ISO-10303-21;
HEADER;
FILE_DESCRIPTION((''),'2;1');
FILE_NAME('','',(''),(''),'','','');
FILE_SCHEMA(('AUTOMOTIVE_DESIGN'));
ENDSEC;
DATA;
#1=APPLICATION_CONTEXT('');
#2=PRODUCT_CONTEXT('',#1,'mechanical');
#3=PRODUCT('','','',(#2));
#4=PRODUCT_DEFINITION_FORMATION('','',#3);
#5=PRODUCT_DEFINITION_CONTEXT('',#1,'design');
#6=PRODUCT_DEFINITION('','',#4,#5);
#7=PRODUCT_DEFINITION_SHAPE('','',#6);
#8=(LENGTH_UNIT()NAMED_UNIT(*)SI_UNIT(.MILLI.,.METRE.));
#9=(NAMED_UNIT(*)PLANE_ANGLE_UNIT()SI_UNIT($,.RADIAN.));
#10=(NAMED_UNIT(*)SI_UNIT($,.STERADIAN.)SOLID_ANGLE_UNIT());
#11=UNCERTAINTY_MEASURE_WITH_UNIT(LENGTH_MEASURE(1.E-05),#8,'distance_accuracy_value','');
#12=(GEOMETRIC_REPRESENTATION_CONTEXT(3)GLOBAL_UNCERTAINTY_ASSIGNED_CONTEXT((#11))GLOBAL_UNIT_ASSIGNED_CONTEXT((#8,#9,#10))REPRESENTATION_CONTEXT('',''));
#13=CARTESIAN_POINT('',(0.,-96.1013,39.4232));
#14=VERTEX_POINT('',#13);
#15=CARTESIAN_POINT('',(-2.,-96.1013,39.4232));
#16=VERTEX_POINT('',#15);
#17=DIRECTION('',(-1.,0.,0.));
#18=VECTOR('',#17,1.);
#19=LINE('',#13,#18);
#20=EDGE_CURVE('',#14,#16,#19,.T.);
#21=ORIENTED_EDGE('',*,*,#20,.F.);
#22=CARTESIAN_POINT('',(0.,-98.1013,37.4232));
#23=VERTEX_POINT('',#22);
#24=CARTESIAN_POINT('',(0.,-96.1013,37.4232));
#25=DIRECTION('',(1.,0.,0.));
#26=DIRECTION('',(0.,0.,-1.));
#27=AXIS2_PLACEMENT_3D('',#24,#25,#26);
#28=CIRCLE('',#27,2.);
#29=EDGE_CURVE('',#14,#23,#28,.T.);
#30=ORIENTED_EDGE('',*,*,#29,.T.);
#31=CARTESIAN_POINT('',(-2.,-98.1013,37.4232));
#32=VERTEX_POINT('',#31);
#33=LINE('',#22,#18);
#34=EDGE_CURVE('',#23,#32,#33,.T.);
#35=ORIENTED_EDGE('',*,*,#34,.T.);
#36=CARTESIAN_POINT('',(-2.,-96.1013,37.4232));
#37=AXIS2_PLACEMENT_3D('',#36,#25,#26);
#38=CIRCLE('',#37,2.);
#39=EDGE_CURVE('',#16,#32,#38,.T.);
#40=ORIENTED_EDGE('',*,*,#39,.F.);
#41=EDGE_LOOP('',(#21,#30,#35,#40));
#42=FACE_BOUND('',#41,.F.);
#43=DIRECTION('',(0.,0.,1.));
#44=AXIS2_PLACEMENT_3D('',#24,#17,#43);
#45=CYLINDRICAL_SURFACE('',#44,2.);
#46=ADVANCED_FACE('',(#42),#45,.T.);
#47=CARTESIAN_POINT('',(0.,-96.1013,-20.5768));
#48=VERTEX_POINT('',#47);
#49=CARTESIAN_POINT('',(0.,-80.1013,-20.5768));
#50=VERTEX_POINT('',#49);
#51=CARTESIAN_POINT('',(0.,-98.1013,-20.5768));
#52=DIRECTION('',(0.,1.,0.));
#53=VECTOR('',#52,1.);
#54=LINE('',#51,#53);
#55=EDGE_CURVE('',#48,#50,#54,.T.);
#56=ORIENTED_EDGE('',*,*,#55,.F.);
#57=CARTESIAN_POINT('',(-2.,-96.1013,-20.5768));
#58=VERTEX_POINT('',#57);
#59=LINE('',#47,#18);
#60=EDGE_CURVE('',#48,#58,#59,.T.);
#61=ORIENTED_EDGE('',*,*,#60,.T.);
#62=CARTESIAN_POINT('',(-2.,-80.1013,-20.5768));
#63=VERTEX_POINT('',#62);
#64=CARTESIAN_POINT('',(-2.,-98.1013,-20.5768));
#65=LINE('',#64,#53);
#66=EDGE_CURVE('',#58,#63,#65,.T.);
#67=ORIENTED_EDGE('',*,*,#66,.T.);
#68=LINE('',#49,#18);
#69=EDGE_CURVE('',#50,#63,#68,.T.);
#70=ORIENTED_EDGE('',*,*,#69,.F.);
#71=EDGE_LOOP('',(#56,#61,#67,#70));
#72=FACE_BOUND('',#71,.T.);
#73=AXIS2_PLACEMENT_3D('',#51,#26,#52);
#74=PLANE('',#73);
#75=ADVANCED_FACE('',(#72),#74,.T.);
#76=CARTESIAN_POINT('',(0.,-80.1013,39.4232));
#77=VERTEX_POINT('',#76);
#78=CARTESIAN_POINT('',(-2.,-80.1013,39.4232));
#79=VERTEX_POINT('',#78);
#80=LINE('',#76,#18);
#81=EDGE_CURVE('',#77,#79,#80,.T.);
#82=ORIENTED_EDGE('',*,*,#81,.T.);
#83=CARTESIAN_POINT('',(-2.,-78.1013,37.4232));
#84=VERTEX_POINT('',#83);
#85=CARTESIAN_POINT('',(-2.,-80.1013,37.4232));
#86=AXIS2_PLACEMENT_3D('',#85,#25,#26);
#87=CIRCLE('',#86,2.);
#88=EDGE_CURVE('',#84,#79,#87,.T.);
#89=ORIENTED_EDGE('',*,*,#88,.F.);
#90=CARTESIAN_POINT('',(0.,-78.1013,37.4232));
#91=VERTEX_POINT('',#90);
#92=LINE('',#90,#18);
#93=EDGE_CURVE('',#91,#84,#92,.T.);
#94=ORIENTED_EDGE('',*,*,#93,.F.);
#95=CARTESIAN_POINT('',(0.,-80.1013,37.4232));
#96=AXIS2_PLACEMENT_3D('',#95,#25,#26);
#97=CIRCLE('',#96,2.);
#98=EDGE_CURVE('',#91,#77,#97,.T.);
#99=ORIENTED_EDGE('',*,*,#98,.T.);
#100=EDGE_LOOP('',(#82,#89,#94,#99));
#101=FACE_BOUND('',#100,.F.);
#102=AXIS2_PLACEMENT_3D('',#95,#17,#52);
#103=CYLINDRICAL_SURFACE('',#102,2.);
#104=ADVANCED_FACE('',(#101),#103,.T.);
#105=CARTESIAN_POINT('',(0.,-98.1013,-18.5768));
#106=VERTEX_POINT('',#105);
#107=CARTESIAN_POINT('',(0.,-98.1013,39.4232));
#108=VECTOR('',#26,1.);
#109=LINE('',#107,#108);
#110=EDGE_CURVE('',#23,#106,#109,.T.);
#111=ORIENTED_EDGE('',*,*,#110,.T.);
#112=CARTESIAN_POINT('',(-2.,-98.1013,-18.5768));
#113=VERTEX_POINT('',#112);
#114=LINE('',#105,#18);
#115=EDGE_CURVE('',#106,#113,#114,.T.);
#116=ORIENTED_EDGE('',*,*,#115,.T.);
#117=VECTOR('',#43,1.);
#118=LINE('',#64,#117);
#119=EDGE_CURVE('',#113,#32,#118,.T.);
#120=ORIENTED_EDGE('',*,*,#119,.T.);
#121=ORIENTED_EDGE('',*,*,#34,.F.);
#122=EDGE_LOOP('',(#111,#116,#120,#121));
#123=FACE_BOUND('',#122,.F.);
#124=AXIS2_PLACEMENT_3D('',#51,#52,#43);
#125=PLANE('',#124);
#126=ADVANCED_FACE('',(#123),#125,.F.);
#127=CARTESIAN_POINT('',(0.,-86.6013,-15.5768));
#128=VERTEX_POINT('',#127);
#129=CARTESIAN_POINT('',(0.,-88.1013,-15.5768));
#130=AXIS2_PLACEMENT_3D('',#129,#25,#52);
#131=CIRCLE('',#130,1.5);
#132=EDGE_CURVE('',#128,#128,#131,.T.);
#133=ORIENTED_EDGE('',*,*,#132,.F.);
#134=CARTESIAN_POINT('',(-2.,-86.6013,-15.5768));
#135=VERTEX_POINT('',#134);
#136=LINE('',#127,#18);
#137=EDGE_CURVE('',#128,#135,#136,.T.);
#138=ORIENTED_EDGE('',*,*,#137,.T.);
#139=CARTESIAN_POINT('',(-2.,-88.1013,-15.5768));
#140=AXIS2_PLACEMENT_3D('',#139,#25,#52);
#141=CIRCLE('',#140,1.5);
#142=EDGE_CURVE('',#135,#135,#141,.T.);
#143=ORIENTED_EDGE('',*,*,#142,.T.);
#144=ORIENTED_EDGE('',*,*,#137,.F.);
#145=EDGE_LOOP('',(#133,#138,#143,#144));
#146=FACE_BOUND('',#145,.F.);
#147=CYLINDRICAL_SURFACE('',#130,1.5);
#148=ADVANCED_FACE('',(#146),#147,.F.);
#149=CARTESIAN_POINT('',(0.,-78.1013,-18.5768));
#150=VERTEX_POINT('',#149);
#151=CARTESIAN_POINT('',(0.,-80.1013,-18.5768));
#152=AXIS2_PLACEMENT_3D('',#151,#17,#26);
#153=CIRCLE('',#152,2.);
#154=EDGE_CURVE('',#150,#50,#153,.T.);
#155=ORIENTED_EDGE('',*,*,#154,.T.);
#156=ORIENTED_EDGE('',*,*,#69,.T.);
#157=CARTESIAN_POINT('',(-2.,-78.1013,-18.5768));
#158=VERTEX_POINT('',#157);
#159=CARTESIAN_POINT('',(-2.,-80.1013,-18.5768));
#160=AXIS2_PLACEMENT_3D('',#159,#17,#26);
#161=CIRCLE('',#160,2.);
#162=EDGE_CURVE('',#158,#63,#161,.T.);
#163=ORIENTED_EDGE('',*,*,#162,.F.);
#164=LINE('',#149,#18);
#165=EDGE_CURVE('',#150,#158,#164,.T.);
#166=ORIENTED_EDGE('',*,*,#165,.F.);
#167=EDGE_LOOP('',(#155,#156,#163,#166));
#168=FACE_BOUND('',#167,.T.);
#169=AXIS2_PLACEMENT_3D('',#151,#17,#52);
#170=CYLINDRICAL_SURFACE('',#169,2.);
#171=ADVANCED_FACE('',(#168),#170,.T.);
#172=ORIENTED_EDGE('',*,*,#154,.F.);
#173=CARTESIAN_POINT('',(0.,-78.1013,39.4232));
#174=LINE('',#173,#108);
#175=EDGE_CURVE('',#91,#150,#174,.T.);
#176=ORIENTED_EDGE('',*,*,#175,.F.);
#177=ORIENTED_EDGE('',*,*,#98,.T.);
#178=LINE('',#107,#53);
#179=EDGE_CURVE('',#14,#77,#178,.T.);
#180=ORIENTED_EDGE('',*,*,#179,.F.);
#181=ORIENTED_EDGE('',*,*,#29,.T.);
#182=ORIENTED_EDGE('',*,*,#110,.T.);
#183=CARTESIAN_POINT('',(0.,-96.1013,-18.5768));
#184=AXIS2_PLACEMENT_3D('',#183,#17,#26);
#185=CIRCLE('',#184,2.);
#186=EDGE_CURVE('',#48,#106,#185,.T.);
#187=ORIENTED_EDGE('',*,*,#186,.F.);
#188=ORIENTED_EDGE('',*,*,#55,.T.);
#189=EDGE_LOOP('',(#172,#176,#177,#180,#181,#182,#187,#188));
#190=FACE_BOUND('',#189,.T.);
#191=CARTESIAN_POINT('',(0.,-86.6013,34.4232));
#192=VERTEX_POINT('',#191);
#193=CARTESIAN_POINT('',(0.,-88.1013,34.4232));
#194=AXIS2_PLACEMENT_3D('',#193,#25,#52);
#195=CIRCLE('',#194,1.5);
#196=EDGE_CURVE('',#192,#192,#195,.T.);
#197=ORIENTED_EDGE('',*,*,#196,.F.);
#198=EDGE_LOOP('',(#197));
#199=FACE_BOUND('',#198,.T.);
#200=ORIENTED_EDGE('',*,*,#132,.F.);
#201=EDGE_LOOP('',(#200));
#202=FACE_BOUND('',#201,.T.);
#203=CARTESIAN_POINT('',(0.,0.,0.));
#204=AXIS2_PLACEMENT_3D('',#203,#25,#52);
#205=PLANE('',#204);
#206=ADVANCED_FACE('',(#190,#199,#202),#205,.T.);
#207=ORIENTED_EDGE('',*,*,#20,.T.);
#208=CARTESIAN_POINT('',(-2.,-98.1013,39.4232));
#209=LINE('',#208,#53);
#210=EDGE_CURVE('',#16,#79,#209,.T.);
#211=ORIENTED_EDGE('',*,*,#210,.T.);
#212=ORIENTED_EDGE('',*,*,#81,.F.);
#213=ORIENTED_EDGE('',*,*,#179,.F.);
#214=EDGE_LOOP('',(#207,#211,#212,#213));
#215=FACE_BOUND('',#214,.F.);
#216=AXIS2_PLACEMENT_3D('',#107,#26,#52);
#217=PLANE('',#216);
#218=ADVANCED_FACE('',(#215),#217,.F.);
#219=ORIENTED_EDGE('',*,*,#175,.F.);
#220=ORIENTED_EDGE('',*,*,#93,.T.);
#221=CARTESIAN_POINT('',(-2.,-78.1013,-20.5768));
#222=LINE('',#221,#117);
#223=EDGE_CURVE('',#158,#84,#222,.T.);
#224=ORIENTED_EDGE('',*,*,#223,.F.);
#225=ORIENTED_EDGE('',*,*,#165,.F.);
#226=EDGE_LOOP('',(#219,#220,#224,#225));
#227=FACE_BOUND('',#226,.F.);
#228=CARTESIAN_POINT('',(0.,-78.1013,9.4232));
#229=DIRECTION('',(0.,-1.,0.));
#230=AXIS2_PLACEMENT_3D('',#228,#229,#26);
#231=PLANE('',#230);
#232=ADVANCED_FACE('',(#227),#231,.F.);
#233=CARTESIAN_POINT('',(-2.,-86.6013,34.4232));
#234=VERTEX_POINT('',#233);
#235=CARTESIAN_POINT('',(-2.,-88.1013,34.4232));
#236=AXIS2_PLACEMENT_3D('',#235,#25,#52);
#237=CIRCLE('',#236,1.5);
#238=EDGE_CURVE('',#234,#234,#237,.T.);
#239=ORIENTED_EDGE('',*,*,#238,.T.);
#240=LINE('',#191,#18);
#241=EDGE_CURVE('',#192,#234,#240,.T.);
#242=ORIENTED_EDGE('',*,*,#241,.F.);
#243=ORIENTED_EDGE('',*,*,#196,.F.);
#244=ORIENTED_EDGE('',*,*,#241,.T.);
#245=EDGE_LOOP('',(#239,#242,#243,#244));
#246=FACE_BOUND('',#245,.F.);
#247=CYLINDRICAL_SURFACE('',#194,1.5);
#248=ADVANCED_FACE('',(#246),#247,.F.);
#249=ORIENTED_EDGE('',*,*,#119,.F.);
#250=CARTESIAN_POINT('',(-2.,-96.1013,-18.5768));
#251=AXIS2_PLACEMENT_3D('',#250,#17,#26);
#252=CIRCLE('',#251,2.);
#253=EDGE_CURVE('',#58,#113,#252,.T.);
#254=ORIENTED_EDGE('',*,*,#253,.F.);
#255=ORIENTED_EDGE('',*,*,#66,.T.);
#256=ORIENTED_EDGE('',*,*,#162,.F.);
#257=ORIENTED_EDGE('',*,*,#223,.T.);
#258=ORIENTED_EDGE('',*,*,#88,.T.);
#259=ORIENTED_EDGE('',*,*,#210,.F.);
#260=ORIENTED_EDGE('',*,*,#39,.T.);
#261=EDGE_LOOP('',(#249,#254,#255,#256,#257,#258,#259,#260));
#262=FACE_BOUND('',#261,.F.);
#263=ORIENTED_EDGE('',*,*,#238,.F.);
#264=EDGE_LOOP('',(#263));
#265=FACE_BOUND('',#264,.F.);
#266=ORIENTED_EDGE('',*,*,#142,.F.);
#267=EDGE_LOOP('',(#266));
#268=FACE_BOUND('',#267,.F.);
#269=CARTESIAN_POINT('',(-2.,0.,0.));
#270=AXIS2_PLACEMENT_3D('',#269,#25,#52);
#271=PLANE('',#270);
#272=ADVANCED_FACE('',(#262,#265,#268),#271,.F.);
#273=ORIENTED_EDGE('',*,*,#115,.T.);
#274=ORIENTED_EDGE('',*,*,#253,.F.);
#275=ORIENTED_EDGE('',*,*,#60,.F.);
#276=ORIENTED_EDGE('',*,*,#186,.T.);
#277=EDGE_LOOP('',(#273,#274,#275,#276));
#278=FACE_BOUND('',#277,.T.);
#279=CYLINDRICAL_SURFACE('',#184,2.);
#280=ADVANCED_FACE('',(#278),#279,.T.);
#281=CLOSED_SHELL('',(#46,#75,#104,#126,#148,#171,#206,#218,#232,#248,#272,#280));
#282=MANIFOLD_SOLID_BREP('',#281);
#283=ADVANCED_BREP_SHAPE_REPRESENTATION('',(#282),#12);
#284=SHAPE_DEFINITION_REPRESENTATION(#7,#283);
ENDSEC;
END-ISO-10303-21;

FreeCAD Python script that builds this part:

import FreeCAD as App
import Part
import Sketcher
from FreeCAD import Vector
Q = App.Units.Quantity


def edges_at(feature, points):
    """Names of the edges that pass closest to the given points."""
    edges = feature.Shape.Edges
    near = lambda p: min(range(len(edges)), key=lambda i: edges[i].distToShape(Part.Vertex(*p))[0])
    return sorted({f"Edge{near(p) + 1}" for p in points})


def add_polygon(sketch, points):
    """Adds a closed chain of lines whose ends are joined by coincident constraints."""
    first, n = sketch.GeometryCount, len(points)
    for a, b in zip(points, points[1:] + points[:1]):
        sketch.addGeometry(Part.LineSegment(App.Vector(*a, 0), App.Vector(*b, 0)), False)
    for i in range(n):
        sketch.addConstraint(Sketcher.Constraint("Coincident", first + i, 2, first + (i + 1) % n, 1))

doc = App.newDocument("Part")
body = doc.addObject("PartDesign::Body", "Body")

# Sketch on YZ plane
sketch1 = doc.addObject("Sketcher::SketchObject", "Sketch")
body.addObject(sketch1)
sketch1.AttachmentSupport = (doc.YZ_Plane, [""])
sketch1.MapMode = "FlatFace"
add_polygon(sketch1, [(-78.1013, -20.5768), (-78.1013, 39.4232), (-98.1013, 39.4232), (-98.1013, -20.5768)])  # lines 0-3
sketch1.addGeometry(Part.Circle(Vector(-88.1013, -15.5768, 0), Vector(0, 0, 1), 1.5), False)  # 4
sketch1.addGeometry(Part.Circle(Vector(-88.1013, 34.4232, 0), Vector(0, 0, 1), 1.5), False)  # 5
sketch1.addConstraint([
    Sketcher.Constraint("Vertical", 0),
    Sketcher.Constraint("Horizontal", 1),
    Sketcher.Constraint("Vertical", 2),
    Sketcher.Constraint("Horizontal", 3),
    Sketcher.Constraint("Equal", 4, 5),
    Sketcher.Constraint("Vertical", 4, 3, 5, 3),
    Sketcher.Constraint("Diameter", 4, Q("3 mm")),
    Sketcher.Constraint("DistanceX", 1, 2, 1, 1, Q("20 mm")),
    Sketcher.Constraint("DistanceX", 5, 3, 0, 2, Q("10 mm")),
    Sketcher.Constraint("DistanceY", 5, 3, 0, 2, Q("5 mm")),
    Sketcher.Constraint("DistanceY", 2, 2, 4, 3, Q("5 mm")),
    Sketcher.Constraint("DistanceY", 0, 1, 0, 2, Q("60 mm")),
    Sketcher.Constraint("DistanceX", 4, 3, -1, 1, Q("88.1013 mm")),
    Sketcher.Constraint("DistanceY", 4, 3, -1, 1, Q("15.5768 mm")),
])
pad1 = doc.addObject("PartDesign::Pad", "Pad")
body.addObject(pad1)
pad1.Profile = sketch1
pad1.Length = 2
pad1.Reversed = True
doc.recompute()

fillet = doc.addObject("PartDesign::Fillet", "Fillet")
body.addObject(fillet)
fillet.Base = (pad1, edges_at(pad1, [
    (-1, -78.101, 39.423),
    (-1, -98.101, 39.423),
    (-1, -98.101, -20.577),
    (-1, -78.101, -20.577),
]))
fillet.Radius = 2

doc.recompute()
